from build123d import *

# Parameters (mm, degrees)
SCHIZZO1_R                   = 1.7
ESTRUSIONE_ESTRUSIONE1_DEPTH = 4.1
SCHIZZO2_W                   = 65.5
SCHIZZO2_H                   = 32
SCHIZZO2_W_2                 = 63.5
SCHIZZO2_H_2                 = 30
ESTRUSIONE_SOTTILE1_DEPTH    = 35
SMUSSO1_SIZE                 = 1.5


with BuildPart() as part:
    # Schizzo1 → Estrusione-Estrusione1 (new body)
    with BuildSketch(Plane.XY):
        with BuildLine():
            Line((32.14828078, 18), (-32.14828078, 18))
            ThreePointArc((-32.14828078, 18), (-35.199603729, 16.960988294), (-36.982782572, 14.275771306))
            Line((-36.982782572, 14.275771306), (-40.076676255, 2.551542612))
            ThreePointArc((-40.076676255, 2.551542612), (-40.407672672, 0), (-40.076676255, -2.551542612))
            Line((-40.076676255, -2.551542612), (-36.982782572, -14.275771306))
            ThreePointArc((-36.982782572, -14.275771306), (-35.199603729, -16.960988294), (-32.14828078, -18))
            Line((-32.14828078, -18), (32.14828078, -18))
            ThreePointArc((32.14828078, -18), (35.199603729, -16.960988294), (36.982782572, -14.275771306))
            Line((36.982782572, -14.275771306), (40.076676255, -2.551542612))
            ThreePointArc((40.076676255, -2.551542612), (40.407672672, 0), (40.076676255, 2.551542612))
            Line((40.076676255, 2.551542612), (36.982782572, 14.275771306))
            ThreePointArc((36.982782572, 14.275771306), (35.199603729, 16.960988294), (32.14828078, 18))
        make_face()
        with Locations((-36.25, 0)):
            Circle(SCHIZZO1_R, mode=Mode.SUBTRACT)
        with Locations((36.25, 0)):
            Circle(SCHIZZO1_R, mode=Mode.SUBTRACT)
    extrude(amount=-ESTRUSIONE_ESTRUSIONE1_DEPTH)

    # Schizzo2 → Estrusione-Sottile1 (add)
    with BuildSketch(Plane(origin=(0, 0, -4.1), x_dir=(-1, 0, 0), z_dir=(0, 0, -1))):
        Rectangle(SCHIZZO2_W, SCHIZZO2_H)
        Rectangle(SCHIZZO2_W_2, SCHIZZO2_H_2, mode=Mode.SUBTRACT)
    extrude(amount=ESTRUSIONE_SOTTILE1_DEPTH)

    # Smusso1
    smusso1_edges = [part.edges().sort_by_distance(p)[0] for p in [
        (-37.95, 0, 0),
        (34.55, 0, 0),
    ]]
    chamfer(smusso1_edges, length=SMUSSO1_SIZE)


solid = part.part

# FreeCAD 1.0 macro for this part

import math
import FreeCAD as App
import Part
import Sketcher
from FreeCAD import Vector


def edges_at(feature, points):
    """Names of the edges that pass closest to the given points."""
    edges = feature.Shape.Edges
    near = lambda p: min(range(len(edges)), key=lambda i: edges[i].distToShape(Part.Vertex(*p))[0])
    return sorted({f"Edge{near(p) + 1}" for p in points})


def add_polygon(sketch, points):
    """Adds a closed chain of lines whose ends are joined by coincident constraints."""
    first, n = sketch.GeometryCount, len(points)
    for a, b in zip(points, points[1:] + points[:1]):
        sketch.addGeometry(Part.LineSegment(App.Vector(*a, 0), App.Vector(*b, 0)), False)
    for i in range(n):
        sketch.addConstraint(Sketcher.Constraint("Coincident", first + i, 2, first + (i + 1) % n, 1))

doc = App.newDocument("Part")
body = doc.addObject("PartDesign::Body", "Body")

# Sketch on XY plane
sketch1 = body.newObject("Sketcher::SketchObject", "Sketch")
sketch1.AttachmentSupport = (doc.getObject("XY_Plane"), [""])
sketch1.MapMode = "FlatFace"
sketch1.addGeometry(Part.LineSegment(Vector(32.1, 18, 0), Vector(-32.1, 18, 0)), False)
sketch1.addGeometry(Part.ArcOfCircle(Part.Circle(Vector(-32.1, 13, 0), Vector(0, 0, 1), 5), math.radians(90), math.radians(165)), False)
sketch1.addGeometry(Part.LineSegment(Vector(-37, 14.3, 0), Vector(-40.1, 2.6, 0)), False)
sketch1.addGeometry(Part.ArcOfCircle(Part.Circle(Vector(-30.4, 0, 0), Vector(0, 0, 1), 10), math.radians(165), math.radians(195)), False)
sketch1.addGeometry(Part.LineSegment(Vector(-40.1, -2.6, 0), Vector(-37, -14.3, 0)), False)
sketch1.addGeometry(Part.ArcOfCircle(Part.Circle(Vector(-32.1, -13, 0), Vector(0, 0, 1), 5), math.radians(-165), math.radians(-90)), False)
sketch1.addGeometry(Part.LineSegment(Vector(-32.1, -18, 0), Vector(32.1, -18, 0)), False)
sketch1.addGeometry(Part.ArcOfCircle(Part.Circle(Vector(32.1, -13, 0), Vector(0, 0, 1), 5), math.radians(-90), math.radians(-15)), False)
sketch1.addGeometry(Part.LineSegment(Vector(37, -14.3, 0), Vector(40.1, -2.6, 0)), False)
sketch1.addGeometry(Part.ArcOfCircle(Part.Circle(Vector(30.4, 0, 0), Vector(0, 0, 1), 10), math.radians(-15), math.radians(15)), False)
sketch1.addGeometry(Part.LineSegment(Vector(40.1, 2.6, 0), Vector(37, 14.3, 0)), False)
sketch1.addGeometry(Part.ArcOfCircle(Part.Circle(Vector(32.1, 13, 0), Vector(0, 0, 1), 5), math.radians(15), math.radians(90)), False)
sketch1.addGeometry(Part.Circle(Vector(-36.2, 0, 0), Vector(0, 0, 1), 1.7), False)
sketch1.addGeometry(Part.Circle(Vector(36.2, 0, 0), Vector(0, 0, 1), 1.7), False)
sketch1.addConstraint(Sketcher.Constraint("Tangent", 0, 2, 1, 1))
sketch1.addConstraint(Sketcher.Constraint("Tangent", 1, 2, 2, 1))
sketch1.addConstraint(Sketcher.Constraint("Tangent", 2, 2, 3, 1))
sketch1.addConstraint(Sketcher.Constraint("Tangent", 3, 2, 4, 1))
sketch1.addConstraint(Sketcher.Constraint("Tangent", 4, 2, 5, 1))
sketch1.addConstraint(Sketcher.Constraint("Tangent", 5, 2, 6, 1))
sketch1.addConstraint(Sketcher.Constraint("Tangent", 6, 2, 7, 1))
sketch1.addConstraint(Sketcher.Constraint("Tangent", 7, 2, 8, 1))
sketch1.addConstraint(Sketcher.Constraint("Tangent", 8, 2, 9, 1))
sketch1.addConstraint(Sketcher.Constraint("Tangent", 9, 2, 10, 1))
sketch1.addConstraint(Sketcher.Constraint("Tangent", 10, 2, 11, 1))
sketch1.addConstraint(Sketcher.Constraint("Tangent", 11, 2, 0, 1))
sketch1.addConstraint(Sketcher.Constraint("Horizontal", 0))
sketch1.addConstraint(Sketcher.Constraint("Horizontal", 6))
sketch1.addConstraint(Sketcher.Constraint("Equal", 1, 5))
sketch1.addConstraint(Sketcher.Constraint("Equal", 5, 7))
sketch1.addConstraint(Sketcher.Constraint("Equal", 3, 9))
sketch1.addConstraint(Sketcher.Constraint("Equal", 7, 11))
sketch1.addConstraint(Sketcher.Constraint("Equal", 12, 13))
sketch1.addConstraint(Sketcher.Constraint("Symmetric", 1, 3, 7, 3, -1, 1))
sketch1.addConstraint(Sketcher.Constraint("Symmetric", 3, 3, 9, 3, -1, 1))
sketch1.addConstraint(Sketcher.Constraint("Symmetric", 12, 3, 13, 3, -1, 1))
sketch1.addConstraint(Sketcher.Constraint("Symmetric", 4, 2, 7, 2, -2))
sketch1.addConstraint(Sketcher.Constraint("PointOnObject", 12, 3, -1))
sketch1.addConstraint(Sketcher.Constraint("Parallel", 4, 10))
sketch1.addConstraint(Sketcher.Constraint("Radius", 1, 5.0))
sketch1.addConstraint(Sketcher.Constraint("Radius", 3, 10.0))
sketch1.addConstraint(Sketcher.Constraint("Diameter", 12, 3.4))
sketch1.addConstraint(Sketcher.Constraint("DistanceY", -1, 1, 1, 3, 13.0))
sketch1.addConstraint(Sketcher.Constraint("DistanceX", 12, 3, -1, 1, 36.25))
sketch1.addConstraint(Sketcher.Constraint("DistanceX", 0, 2, 0, 1, 64.296562))
sketch1.addConstraint(Sketcher.Constraint("DistanceX", 1, 2, 1, 3, 4.834502))
pad1 = body.newObject("PartDesign::Pad", "Pad")
pad1.Profile = sketch1
pad1.Length = 4.1
pad1.Reversed = True

# Sketch on XY plane
sketch2 = body.newObject("Sketcher::SketchObject", "Sketch001")
sketch2.AttachmentSupport = (doc.getObject("XY_Plane"), [""])
sketch2.MapMode = "FlatFace"
sketch2.AttachmentOffset = App.Placement(Vector(0, 0, -4.1), App.Rotation())
add_polygon(sketch2, [(33, 16), (33, -16), (-33, -16), (-33, 16)])  # lines 0-3
add_polygon(sketch2, [(-32, -15), (32, -15), (32, 15), (-32, 15)])  # lines 4-7
sketch2.addConstraint(Sketcher.Constraint("Vertical", 0))
sketch2.addConstraint(Sketcher.Constraint("Horizontal", 1))
sketch2.addConstraint(Sketcher.Constraint("Vertical", 2))
sketch2.addConstraint(Sketcher.Constraint("Horizontal", 3))
sketch2.addConstraint(Sketcher.Constraint("Horizontal", 4))
sketch2.addConstraint(Sketcher.Constraint("Vertical", 5))
sketch2.addConstraint(Sketcher.Constraint("Horizontal", 6))
sketch2.addConstraint(Sketcher.Constraint("Vertical", 7))
sketch2.addConstraint(Sketcher.Constraint("Symmetric", 0, 2, 2, 2, -1, 1))
sketch2.addConstraint(Sketcher.Constraint("Symmetric", 4, 2, 6, 2, -1, 1))
sketch2.addConstraint(Sketcher.Constraint("DistanceY", 0, 2, 0, 1, 32.0))
sketch2.addConstraint(Sketcher.Constraint("DistanceY", 5, 1, 5, 2, 30.0))
sketch2.addConstraint(Sketcher.Constraint("DistanceX", 1, 2, 1, 1, 65.5))
sketch2.addConstraint(Sketcher.Constraint("DistanceX", 4, 1, 4, 2, 63.5))
pad2 = body.newObject("PartDesign::Pad", "Pad001")
pad2.Profile = sketch2
pad2.Length = 35
pad2.Reversed = True
doc.recompute()

chamfer = body.newObject("PartDesign::Chamfer", "Chamfer")
chamfer.Base = (pad2, edges_at(pad2, [(-37.95, 0, 0), (34.55, 0, 0)]))
chamfer.Size = 1.5

doc.recompute()
